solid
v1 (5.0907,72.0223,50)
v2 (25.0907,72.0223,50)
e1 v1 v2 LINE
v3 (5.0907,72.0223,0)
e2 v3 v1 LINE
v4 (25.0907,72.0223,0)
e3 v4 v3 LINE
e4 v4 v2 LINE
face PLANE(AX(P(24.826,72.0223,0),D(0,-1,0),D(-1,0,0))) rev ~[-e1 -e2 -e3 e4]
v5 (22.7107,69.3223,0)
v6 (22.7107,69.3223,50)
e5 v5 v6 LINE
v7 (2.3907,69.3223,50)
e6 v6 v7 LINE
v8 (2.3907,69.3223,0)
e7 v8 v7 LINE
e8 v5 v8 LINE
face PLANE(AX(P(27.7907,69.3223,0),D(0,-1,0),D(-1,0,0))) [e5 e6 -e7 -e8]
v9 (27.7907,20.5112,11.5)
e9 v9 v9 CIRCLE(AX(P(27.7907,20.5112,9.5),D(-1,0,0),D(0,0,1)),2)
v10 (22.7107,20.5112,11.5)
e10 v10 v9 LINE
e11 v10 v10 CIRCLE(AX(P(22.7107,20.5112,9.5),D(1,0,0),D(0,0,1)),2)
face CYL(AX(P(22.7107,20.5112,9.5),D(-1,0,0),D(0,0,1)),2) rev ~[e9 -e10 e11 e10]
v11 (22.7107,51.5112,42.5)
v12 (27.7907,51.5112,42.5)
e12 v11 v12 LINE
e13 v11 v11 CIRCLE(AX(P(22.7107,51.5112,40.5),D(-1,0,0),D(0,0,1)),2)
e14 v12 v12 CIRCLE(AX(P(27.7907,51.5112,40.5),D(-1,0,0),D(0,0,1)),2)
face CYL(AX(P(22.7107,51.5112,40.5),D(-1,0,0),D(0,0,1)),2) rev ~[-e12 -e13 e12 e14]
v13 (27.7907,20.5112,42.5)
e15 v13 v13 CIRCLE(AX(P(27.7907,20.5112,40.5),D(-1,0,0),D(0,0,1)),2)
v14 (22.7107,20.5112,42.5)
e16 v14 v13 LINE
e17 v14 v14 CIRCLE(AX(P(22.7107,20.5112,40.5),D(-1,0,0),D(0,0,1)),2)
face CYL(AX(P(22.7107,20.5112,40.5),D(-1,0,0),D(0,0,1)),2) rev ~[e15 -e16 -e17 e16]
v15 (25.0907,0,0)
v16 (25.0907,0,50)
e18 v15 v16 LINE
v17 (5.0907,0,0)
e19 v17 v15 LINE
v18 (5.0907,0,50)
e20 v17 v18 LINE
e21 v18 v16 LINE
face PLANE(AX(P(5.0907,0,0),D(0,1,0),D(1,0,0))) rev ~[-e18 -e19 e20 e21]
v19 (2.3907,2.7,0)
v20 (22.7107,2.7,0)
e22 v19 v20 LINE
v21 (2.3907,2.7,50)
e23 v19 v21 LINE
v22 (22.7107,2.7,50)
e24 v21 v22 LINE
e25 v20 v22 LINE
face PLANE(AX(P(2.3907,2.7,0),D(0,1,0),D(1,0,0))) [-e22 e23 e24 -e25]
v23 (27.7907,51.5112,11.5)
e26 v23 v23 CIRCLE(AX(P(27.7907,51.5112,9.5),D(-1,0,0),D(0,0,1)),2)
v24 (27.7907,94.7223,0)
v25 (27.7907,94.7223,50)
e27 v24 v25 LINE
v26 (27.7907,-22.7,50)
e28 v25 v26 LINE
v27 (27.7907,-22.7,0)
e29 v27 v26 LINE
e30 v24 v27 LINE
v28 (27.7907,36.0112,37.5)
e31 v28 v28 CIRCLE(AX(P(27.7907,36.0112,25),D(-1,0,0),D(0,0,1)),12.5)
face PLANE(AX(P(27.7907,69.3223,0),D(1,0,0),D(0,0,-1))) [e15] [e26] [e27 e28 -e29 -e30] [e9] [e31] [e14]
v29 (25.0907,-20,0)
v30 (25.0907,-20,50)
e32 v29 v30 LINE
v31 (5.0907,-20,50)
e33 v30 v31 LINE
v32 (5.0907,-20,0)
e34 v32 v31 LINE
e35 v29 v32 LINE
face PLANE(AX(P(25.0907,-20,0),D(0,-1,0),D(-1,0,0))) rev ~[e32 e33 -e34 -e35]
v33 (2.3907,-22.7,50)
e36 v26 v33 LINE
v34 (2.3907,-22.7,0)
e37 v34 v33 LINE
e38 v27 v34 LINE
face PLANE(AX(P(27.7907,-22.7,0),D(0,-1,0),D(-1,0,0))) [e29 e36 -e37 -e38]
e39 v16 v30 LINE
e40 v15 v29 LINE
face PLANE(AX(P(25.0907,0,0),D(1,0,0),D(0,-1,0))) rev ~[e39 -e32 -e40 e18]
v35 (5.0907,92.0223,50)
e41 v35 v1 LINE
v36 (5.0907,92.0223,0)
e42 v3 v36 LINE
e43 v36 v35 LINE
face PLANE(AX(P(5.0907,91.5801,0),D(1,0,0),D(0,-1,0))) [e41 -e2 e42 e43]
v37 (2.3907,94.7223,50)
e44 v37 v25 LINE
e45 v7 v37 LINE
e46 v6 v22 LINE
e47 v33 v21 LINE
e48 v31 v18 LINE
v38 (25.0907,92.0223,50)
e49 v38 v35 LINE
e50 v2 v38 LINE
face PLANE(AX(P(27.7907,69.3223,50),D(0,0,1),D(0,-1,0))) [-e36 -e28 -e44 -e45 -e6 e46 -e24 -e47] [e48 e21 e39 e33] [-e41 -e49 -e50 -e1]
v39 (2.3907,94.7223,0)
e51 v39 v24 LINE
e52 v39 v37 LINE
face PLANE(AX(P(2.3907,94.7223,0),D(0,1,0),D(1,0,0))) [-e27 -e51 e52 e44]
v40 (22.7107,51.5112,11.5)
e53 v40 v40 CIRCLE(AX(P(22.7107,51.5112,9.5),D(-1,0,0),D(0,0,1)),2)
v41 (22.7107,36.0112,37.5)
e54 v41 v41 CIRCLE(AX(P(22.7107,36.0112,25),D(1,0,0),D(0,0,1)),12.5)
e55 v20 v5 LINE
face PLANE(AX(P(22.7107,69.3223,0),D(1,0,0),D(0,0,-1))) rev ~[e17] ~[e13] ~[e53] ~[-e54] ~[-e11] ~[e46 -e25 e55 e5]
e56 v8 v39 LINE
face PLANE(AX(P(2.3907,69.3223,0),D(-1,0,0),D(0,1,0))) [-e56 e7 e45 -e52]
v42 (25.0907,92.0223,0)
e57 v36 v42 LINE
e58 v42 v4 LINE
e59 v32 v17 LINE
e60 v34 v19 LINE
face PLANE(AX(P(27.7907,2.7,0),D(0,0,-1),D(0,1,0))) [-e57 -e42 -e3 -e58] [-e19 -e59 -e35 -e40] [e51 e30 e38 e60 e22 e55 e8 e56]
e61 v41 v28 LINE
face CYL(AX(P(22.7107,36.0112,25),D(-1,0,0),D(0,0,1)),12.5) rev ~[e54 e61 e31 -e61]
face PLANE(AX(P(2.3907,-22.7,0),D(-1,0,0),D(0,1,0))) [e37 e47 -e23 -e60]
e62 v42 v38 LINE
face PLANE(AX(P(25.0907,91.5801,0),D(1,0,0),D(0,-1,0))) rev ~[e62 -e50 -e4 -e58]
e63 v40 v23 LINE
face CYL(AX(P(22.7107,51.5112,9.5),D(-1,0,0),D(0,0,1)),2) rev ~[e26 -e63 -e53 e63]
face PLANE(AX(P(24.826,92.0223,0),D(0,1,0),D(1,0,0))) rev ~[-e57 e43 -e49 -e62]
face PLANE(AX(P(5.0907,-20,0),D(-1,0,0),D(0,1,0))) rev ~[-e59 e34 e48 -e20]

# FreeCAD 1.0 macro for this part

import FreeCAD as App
import Part
import Sketcher

V = App.Vector
Q = App.Units.Quantity

doc = App.newDocument("Part")
body = doc.addObject("PartDesign::Body", "Body")
body.AllowCompound = True

# Sketch on XY plane
sketch1 = doc.addObject("Sketcher::SketchObject", "Sketch")
body.addObject(sketch1)
sketch1.AttachmentSupport = (doc.XY_Plane, [""])
sketch1.MapMode = "FlatFace"
sketch1.addGeometry(Part.LineSegment(V(28, 3, 0), V(2, 3, 0)), False)
sketch1.addGeometry(Part.LineSegment(V(2, 3, 0), V(2, -23, 0)), False)
sketch1.addGeometry(Part.LineSegment(V(2, -23, 0), V(28, -23, 0)), False)
sketch1.addGeometry(Part.LineSegment(V(28, -23, 0), V(28, 3, 0)), False)
sketch1.addGeometry(Part.LineSegment(V(25, -20, 0), V(5, -20, 0)), False)
sketch1.addGeometry(Part.LineSegment(V(5, -20, 0), V(5, 0, 0)), False)
sketch1.addGeometry(Part.LineSegment(V(5, 0, 0), V(25, 0, 0)), False)
sketch1.addGeometry(Part.LineSegment(V(25, 0, 0), V(25, -20, 0)), False)
sketch1.addGeometry(Part.LineSegment(V(28, 95, 0), V(2, 95, 0)), False)
sketch1.addGeometry(Part.LineSegment(V(2, 95, 0), V(2, 69, 0)), False)
sketch1.addGeometry(Part.LineSegment(V(2, 69, 0), V(28, 69, 0)), False)
sketch1.addGeometry(Part.LineSegment(V(28, 69, 0), V(28, 95, 0)), False)
sketch1.addGeometry(Part.LineSegment(V(5, 72, 0), V(5, 92, 0)), False)
sketch1.addGeometry(Part.LineSegment(V(5, 92, 0), V(25, 92, 0)), False)
sketch1.addGeometry(Part.LineSegment(V(25, 92, 0), V(25, 72, 0)), False)
sketch1.addGeometry(Part.LineSegment(V(25, 72, 0), V(5, 72, 0)), False)
sketch1.addConstraint(Sketcher.Constraint("Coincident", 0, 2, 1, 1))
sketch1.addConstraint(Sketcher.Constraint("Coincident", 1, 2, 2, 1))
sketch1.addConstraint(Sketcher.Constraint("Coincident", 2, 2, 3, 1))
sketch1.addConstraint(Sketcher.Constraint("Coincident", 3, 2, 0, 1))
sketch1.addConstraint(Sketcher.Constraint("Coincident", 4, 2, 5, 1))
sketch1.addConstraint(Sketcher.Constraint("Coincident", 5, 2, 6, 1))
sketch1.addConstraint(Sketcher.Constraint("Coincident", 6, 2, 7, 1))
sketch1.addConstraint(Sketcher.Constraint("Coincident", 7, 2, 4, 1))
sketch1.addConstraint(Sketcher.Constraint("Coincident", 8, 2, 9, 1))
sketch1.addConstraint(Sketcher.Constraint("Coincident", 9, 2, 10, 1))
sketch1.addConstraint(Sketcher.Constraint("Coincident", 10, 2, 11, 1))
sketch1.addConstraint(Sketcher.Constraint("Coincident", 11, 2, 8, 1))
sketch1.addConstraint(Sketcher.Constraint("Coincident", 12, 2, 13, 1))
sketch1.addConstraint(Sketcher.Constraint("Coincident", 13, 2, 14, 1))
sketch1.addConstraint(Sketcher.Constraint("Coincident", 14, 2, 15, 1))
sketch1.addConstraint(Sketcher.Constraint("Coincident", 15, 2, 12, 1))
sketch1.addConstraint(Sketcher.Constraint("Horizontal", 0))
sketch1.addConstraint(Sketcher.Constraint("Vertical", 1))
sketch1.addConstraint(Sketcher.Constraint("Horizontal", 2))
sketch1.addConstraint(Sketcher.Constraint("Vertical", 3))
sketch1.addConstraint(Sketcher.Constraint("Horizontal", 4))
sketch1.addConstraint(Sketcher.Constraint("Vertical", 5))
sketch1.addConstraint(Sketcher.Constraint("Horizontal", 6))
sketch1.addConstraint(Sketcher.Constraint("Vertical", 7))
sketch1.addConstraint(Sketcher.Constraint("Horizontal", 8))
sketch1.addConstraint(Sketcher.Constraint("Vertical", 9))
sketch1.addConstraint(Sketcher.Constraint("Horizontal", 10))
sketch1.addConstraint(Sketcher.Constraint("Vertical", 11))
sketch1.addConstraint(Sketcher.Constraint("Vertical", 12))
sketch1.addConstraint(Sketcher.Constraint("Horizontal", 13))
sketch1.addConstraint(Sketcher.Constraint("Vertical", 14))
sketch1.addConstraint(Sketcher.Constraint("Horizontal", 15))
sketch1.addConstraint(Sketcher.Constraint("PointOnObject", 5, 2, -1))
sketch1.addConstraint(Sketcher.Constraint("Vertical", 1, 2, 8, 2))
sketch1.addConstraint(Sketcher.Constraint("Vertical", 3, 2, 10, 2))
sketch1.addConstraint(Sketcher.Constraint("Vertical", 5, 2, 12, 2))
sketch1.addConstraint(Sketcher.Constraint("Vertical", 7, 2, 13, 2))
sketch1.addConstraint(Sketcher.Constraint("Equal", 10, 1))
sketch1.addConstraint(Sketcher.Constraint("Equal", 15, 5))
sketch1.addConstraint(Sketcher.Constraint("Equal", 3, 9))
sketch1.addConstraint(Sketcher.Constraint("Equal", 7, 12))
sketch1.addConstraint(Sketcher.Constraint("DistanceX", 4, 2, 4, 1, Q("20 mm")))
sketch1.addConstraint(Sketcher.Constraint("DistanceX", 0, 2, 0, 1, Q("25.4 mm")))
sketch1.addConstraint(Sketcher.Constraint("DistanceY", -1, 1, 0, 2, Q("2.7 mm")))
sketch1.addConstraint(Sketcher.Constraint("DistanceX", 1, 2, 4, 2, Q("2.7 mm")))
sketch1.addConstraint(Sketcher.Constraint("DistanceY", 12, 2, 8, 2, Q("2.7 mm")))
sketch1.addConstraint(Sketcher.Constraint("DistanceX", -1, 1, 0, 2, Q("2.3907 mm")))
sketch1.addConstraint(Sketcher.Constraint("DistanceY", -1, 1, 8, 2, Q("94.7223 mm")))
pad1 = doc.addObject("PartDesign::Pad", "Pad")
body.addObject(pad1)
pad1.Profile = sketch1
pad1.Length = 50

# Sketch on YZ plane
sketch2 = doc.addObject("Sketcher::SketchObject", "Sketch001")
body.addObject(sketch2)
sketch2.AttachmentSupport = (doc.YZ_Plane, [""])
sketch2.MapMode = "FlatFace"
sketch2.AttachmentOffset = App.Placement(V(0, 0, 27.7907), App.Rotation())
sketch2.addGeometry(Part.LineSegment(V(3, 0, 0), V(69, 0, 0)), False)
sketch2.addGeometry(Part.LineSegment(V(69, 0, 0), V(69, 50, 0)), False)
sketch2.addGeometry(Part.LineSegment(V(69, 50, 0), V(3, 50, 0)), False)
sketch2.addGeometry(Part.LineSegment(V(3, 50, 0), V(3, 0, 0)), False)
sketch2.addConstraint(Sketcher.Constraint("Coincident", 0, 2, 1, 1))
sketch2.addConstraint(Sketcher.Constraint("Coincident", 1, 2, 2, 1))
sketch2.addConstraint(Sketcher.Constraint("Coincident", 2, 2, 3, 1))
sketch2.addConstraint(Sketcher.Constraint("Coincident", 3, 2, 0, 1))
sketch2.addConstraint(Sketcher.Constraint("Horizontal", 0))
sketch2.addConstraint(Sketcher.Constraint("Vertical", 1))
sketch2.addConstraint(Sketcher.Constraint("Horizontal", 2))
sketch2.addConstraint(Sketcher.Constraint("Vertical", 3))
sketch2.addConstraint(Sketcher.Constraint("PointOnObject", 0, 2, -1))
sketch2.addConstraint(Sketcher.Constraint("DistanceY", 1, 1, 1, 2, Q("50 mm")))
sketch2.addConstraint(Sketcher.Constraint("DistanceX", -1, 1, 2, 2, Q("2.7 mm")))
sketch2.addConstraint(Sketcher.Constraint("DistanceX", 0, 1, 0, 2, Q("66.6223 mm")))
pad2 = doc.addObject("PartDesign::Pad", "Pad001")
body.addObject(pad2)
pad2.Profile = sketch2
pad2.Length = 5.08
pad2.Reversed = True

# Sketch on YZ plane
sketch3 = doc.addObject("Sketcher::SketchObject", "Sketch002")
body.addObject(sketch3)
sketch3.AttachmentSupport = (doc.YZ_Plane, [""])
sketch3.MapMode = "FlatFace"
sketch3.AttachmentOffset = App.Placement(V(0, 0, 22.7107), App.Rotation())
sketch3.addGeometry(Part.Circle(V(36, 25, 0), V(0, 0, 1), 12.5), False)
sketch3.addGeometry(Part.Circle(V(20.5, 9.5, 0), V(0, 0, 1), 2), False)
sketch3.addGeometry(Part.Circle(V(51.5, 9.5, 0), V(0, 0, 1), 2), False)
sketch3.addGeometry(Part.Circle(V(20.5, 40.5, 0), V(0, 0, 1), 2), False)
sketch3.addGeometry(Part.Circle(V(51.5, 40.5, 0), V(0, 0, 1), 2), False)
sketch3.addConstraint(Sketcher.Constraint("Equal", 1, 2))
sketch3.addConstraint(Sketcher.Constraint("Equal", 2, 3))
sketch3.addConstraint(Sketcher.Constraint("Equal", 3, 4))
sketch3.addConstraint(Sketcher.Constraint("Horizontal", 1, 3, 2, 3))
sketch3.addConstraint(Sketcher.Constraint("Horizontal", 3, 3, 4, 3))
sketch3.addConstraint(Sketcher.Constraint("Vertical", 1, 3, 3, 3))
sketch3.addConstraint(Sketcher.Constraint("Vertical", 2, 3, 4, 3))
sketch3.addConstraint(Sketcher.Constraint("Diameter", 0, Q("25 mm")))
sketch3.addConstraint(Sketcher.Constraint("Diameter", 1, Q("4 mm")))
sketch3.addConstraint(Sketcher.Constraint("DistanceY", -1, 1, 0, 3, Q("25 mm")))
sketch3.addConstraint(Sketcher.Constraint("DistanceX", 1, 3, 2, 3, Q("31 mm")))
sketch3.addConstraint(Sketcher.Constraint("DistanceY", 1, 3, 3, 3, Q("31 mm")))
sketch3.addConstraint(Sketcher.Constraint("DistanceX", 1, 3, 0, 3, Q("15.5 mm")))
sketch3.addConstraint(Sketcher.Constraint("DistanceY", 1, 3, 0, 3, Q("15.5 mm")))
sketch3.addConstraint(Sketcher.Constraint("DistanceX", -1, 1, 0, 3, Q("36.0112 mm")))
pocket1 = doc.addObject("PartDesign::Pocket", "Pocket")
body.addObject(pocket1)
pocket1.Profile = sketch3
pocket1.Length = 5.08
pocket1.Reversed = True

doc.recompute()
